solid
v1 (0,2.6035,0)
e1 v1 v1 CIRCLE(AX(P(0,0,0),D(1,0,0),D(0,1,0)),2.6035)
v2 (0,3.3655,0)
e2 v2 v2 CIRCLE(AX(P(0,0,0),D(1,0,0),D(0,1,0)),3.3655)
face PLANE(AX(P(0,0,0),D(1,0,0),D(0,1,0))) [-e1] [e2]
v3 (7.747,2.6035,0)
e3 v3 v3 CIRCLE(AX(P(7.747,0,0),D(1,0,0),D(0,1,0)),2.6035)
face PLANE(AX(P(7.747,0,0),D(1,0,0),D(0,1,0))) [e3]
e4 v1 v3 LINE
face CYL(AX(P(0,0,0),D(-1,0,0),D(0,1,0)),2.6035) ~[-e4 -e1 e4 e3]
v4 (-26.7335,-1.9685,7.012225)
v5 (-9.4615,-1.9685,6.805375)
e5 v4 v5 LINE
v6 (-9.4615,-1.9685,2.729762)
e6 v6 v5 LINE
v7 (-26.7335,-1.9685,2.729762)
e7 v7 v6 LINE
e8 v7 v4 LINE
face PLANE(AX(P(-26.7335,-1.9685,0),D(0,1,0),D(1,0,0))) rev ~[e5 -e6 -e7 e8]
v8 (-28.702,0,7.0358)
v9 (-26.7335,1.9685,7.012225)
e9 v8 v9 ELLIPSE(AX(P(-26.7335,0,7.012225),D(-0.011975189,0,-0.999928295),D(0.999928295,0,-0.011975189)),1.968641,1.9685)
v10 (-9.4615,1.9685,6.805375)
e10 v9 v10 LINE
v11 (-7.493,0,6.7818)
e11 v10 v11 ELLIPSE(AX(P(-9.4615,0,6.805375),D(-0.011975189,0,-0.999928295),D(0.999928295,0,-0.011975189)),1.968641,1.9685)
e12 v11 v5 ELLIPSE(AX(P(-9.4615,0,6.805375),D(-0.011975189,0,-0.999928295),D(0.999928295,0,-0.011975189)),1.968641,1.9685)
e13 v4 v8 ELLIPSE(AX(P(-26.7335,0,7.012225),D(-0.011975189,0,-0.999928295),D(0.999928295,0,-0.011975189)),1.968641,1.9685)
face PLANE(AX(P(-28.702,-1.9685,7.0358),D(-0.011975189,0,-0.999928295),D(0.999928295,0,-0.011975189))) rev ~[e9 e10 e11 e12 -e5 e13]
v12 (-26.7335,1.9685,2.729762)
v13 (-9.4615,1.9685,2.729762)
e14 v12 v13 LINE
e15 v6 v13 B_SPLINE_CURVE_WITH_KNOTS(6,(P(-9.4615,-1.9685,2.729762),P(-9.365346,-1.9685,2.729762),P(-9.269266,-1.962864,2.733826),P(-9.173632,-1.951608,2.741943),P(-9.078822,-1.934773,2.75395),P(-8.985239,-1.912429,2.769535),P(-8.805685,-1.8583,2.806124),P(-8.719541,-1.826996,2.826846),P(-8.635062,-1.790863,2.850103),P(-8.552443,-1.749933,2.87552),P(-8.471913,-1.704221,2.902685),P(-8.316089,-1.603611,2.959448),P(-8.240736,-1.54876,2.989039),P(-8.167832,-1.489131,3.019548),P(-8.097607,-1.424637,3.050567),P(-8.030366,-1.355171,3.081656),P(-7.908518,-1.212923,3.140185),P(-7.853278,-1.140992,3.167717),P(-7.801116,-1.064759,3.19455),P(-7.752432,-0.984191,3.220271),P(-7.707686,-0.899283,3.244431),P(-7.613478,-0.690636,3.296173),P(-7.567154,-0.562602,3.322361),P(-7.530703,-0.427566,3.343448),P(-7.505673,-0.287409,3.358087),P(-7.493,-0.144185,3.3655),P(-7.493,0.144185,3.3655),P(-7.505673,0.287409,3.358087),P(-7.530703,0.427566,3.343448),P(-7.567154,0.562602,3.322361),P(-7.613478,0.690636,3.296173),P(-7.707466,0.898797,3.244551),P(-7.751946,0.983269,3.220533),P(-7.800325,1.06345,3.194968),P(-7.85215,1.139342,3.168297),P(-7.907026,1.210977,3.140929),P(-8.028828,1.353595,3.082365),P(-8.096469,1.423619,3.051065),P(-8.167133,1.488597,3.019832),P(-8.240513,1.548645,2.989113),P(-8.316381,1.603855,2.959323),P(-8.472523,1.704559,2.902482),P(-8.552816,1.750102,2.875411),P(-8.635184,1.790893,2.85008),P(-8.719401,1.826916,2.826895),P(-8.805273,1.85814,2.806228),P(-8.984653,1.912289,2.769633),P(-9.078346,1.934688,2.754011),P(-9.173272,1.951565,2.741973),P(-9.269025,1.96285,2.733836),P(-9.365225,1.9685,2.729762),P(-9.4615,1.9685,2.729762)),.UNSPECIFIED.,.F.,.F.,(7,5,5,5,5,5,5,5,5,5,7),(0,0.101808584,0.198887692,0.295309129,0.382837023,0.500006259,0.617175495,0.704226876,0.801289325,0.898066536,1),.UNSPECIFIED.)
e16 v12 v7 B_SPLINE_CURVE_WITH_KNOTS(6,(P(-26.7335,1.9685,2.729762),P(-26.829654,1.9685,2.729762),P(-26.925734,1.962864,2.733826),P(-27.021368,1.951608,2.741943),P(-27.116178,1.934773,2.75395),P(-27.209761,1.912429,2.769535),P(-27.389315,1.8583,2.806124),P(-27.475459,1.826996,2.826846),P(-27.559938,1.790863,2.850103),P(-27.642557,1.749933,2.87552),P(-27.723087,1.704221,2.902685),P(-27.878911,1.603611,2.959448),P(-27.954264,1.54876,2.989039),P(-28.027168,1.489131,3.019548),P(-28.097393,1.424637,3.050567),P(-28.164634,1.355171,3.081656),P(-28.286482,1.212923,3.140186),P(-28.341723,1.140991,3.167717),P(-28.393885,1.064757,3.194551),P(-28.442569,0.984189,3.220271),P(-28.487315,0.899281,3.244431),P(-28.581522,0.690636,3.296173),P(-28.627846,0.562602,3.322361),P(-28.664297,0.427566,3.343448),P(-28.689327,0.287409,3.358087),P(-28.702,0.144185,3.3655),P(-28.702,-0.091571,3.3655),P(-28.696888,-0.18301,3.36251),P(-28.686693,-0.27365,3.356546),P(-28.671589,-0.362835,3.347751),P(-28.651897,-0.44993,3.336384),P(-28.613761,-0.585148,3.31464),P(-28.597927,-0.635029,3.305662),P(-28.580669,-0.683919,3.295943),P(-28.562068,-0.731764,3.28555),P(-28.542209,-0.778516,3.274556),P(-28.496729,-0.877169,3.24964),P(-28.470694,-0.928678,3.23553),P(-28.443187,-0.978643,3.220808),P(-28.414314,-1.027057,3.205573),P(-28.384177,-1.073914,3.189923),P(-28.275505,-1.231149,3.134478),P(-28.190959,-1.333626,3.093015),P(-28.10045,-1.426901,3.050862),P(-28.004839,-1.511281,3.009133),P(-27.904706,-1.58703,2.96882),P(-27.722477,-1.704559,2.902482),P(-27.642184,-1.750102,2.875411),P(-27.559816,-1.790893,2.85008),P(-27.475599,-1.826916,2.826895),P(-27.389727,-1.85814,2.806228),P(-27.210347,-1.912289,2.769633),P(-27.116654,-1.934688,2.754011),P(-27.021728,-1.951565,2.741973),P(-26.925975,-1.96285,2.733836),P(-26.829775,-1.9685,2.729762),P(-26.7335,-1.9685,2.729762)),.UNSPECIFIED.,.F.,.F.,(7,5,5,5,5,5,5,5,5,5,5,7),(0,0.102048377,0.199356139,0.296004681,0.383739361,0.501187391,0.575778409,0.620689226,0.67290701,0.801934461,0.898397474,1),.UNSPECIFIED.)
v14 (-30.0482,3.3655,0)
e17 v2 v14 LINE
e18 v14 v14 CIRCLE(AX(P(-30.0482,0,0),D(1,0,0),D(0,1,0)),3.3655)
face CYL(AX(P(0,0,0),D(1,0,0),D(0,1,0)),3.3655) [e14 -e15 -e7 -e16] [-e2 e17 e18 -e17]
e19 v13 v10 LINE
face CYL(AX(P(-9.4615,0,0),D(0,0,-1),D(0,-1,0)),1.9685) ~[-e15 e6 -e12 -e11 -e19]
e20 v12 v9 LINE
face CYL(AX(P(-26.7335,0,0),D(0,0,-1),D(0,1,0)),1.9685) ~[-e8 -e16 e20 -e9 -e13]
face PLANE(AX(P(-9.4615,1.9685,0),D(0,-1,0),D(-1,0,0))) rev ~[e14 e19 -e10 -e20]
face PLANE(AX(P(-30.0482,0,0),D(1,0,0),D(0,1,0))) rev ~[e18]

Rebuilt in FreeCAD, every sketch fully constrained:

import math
import FreeCAD as App
import Part
import Sketcher

V = App.Vector
Q = App.Units.Quantity

doc = App.newDocument("Part")
body = doc.addObject("PartDesign::Body", "Body")

sketch1 = body.newObject("Sketcher::SketchObject", "Sketch")
sketch1.AttachmentSupport = (doc.getObject("YZ_Plane"), [""])
sketch1.MapMode = "FlatFace"
sketch1.addGeometry(Part.Circle(V(0, 0, 0), V(0, 0, 1), 3.4), False)
sketch1.addConstraint(Sketcher.Constraint("Coincident", 0, 3, -1, 1))
sketch1.addConstraint(Sketcher.Constraint("Diameter", 0, Q("0.265 in")))
pad1 = body.newObject("PartDesign::Pad", "Pad")
pad1.Profile = sketch1
pad1.Length = Q("1.183 in")
pad1.Reversed = True

sketch2 = body.newObject("Sketcher::SketchObject", "Sketch001")
sketch2.AttachmentSupport = (doc.getObject("YZ_Plane"), [""])
sketch2.MapMode = "FlatFace"
sketch2.addGeometry(Part.Circle(V(0, 0, 0), V(0, 0, 1), 2.6), False)
sketch2.addConstraint(Sketcher.Constraint("Coincident", 0, 3, -1, 1))
sketch2.addConstraint(Sketcher.Constraint("Diameter", 0, Q("0.205 in")))
pad2 = body.newObject("PartDesign::Pad", "Pad001")
pad2.Profile = sketch2
pad2.Length = Q("0.305 in")

sketch3 = body.newObject("Sketcher::SketchObject", "Sketch002")
sketch3.AttachmentSupport = (doc.getObject("XY_Plane"), [""])
sketch3.MapMode = "FlatFace"
sketch3.addGeometry(Part.LineSegment(V(-9.5, 2, 0), V(-26.7, 2, 0)), False)
sketch3.addGeometry(Part.ArcOfCircle(Part.Circle(V(-26.7, 0, 0), V(0, 0, 1), 2), math.radians(90), math.radians(270)), False)
sketch3.addGeometry(Part.LineSegment(V(-26.7, -2, 0), V(-9.5, -2, 0)), False)
sketch3.addGeometry(Part.ArcOfCircle(Part.Circle(V(-9.5, 0, 0), V(0, 0, 1), 2), math.radians(-90), math.radians(90)), False)
sketch3.addConstraint(Sketcher.Constraint("Tangent", 0, 2, 1, 1))
sketch3.addConstraint(Sketcher.Constraint("Tangent", 1, 2, 2, 1))
sketch3.addConstraint(Sketcher.Constraint("Tangent", 2, 2, 3, 1))
sketch3.addConstraint(Sketcher.Constraint("Tangent", 3, 2, 0, 1))
sketch3.addConstraint(Sketcher.Constraint("Horizontal", 0))
sketch3.addConstraint(Sketcher.Constraint("Horizontal", 2))
sketch3.addConstraint(Sketcher.Constraint("PointOnObject", 1, 3, -1))
sketch3.addConstraint(Sketcher.Constraint("DistanceX", 0, 2, 0, 1, Q("0.68 in")))
sketch3.addConstraint(Sketcher.Constraint("Radius", 1, Q("0.0775 in")))
sketch3.addConstraint(Sketcher.Constraint("DistanceX", 1, 3, -1, 1, Q("1.0525 in")))
pad3 = body.newObject("PartDesign::Pad", "Pad002")
pad3.Profile = sketch3
pad3.Length = Q("0.277 in")

sketch4 = body.newObject("Sketcher::SketchObject", "Sketch003")
sketch4.AttachmentSupport = (doc.getObject("XZ_Plane"), [""])
sketch4.MapMode = "FlatFace"
sketch4.AttachmentOffset = App.Placement(V(0, 0, 0.0775 * 25.4), App.Rotation())
sketch4.addGeometry(Part.LineSegment(V(-7.49, 7.04, 0), V(-28.7, 7.04, 0)), False)
sketch4.addGeometry(Part.LineSegment(V(-28.7, 7.04, 0), V(-7.49, 6.78, 0)), False)
sketch4.addGeometry(Part.LineSegment(V(-7.49, 6.78, 0), V(-7.49, 7.04, 0)), False)
sketch4.addConstraint(Sketcher.Constraint("Coincident", 0, 2, 1, 1))
sketch4.addConstraint(Sketcher.Constraint("Coincident", 1, 2, 2, 1))
sketch4.addConstraint(Sketcher.Constraint("Coincident", 2, 2, 0, 1))
sketch4.addConstraint(Sketcher.Constraint("Horizontal", 0))
sketch4.addConstraint(Sketcher.Constraint("Vertical", 2))
sketch4.addConstraint(Sketcher.Constraint("DistanceY", 2, 1, 2, 2, Q("0.01 in")))
sketch4.addConstraint(Sketcher.Constraint("DistanceX", 0, 2, 0, 1, Q("0.835 in")))
sketch4.addConstraint(Sketcher.Constraint("DistanceX", 0, 2, -1, 1, Q("1.13 in")))
sketch4.addConstraint(Sketcher.Constraint("DistanceY", -1, 1, 0, 2, Q("0.277 in")))
pocket1 = body.newObject("PartDesign::Pocket", "Pocket")
pocket1.Profile = sketch4
pocket1.Type = "ThroughAll"

doc.recompute()
